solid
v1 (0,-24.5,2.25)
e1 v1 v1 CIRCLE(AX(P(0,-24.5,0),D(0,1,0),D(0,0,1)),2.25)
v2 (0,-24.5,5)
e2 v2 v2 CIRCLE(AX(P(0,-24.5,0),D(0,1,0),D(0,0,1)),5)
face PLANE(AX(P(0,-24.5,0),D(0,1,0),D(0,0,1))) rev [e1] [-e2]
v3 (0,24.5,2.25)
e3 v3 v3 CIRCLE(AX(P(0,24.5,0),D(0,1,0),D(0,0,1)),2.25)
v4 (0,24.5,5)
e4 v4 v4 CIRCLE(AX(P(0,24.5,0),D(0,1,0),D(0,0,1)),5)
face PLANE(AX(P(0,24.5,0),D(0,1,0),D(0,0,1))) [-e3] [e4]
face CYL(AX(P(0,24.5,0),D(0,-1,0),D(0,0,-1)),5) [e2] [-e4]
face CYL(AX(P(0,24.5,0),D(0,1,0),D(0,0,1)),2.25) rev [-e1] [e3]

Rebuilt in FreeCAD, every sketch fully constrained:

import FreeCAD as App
import Part
import Sketcher
from FreeCAD import Vector
Q = App.Units.Quantity

doc = App.newDocument("Part")
body = doc.addObject("PartDesign::Body", "Body")

sketch1 = body.newObject("Sketcher::SketchObject", "Sketch")
sketch1.AttachmentSupport = (doc.getObject("XZ_Plane"), [""])
sketch1.MapMode = "FlatFace"
sketch1.addGeometry(Part.Circle(Vector(0, 0, 0), Vector(0, 0, 1), 5), False)
sketch1.addConstraint([
    Sketcher.Constraint("Coincident", 0, 3, -1, 1),
    Sketcher.Constraint("Diameter", 0, Q("10 mm")),
])
pad1 = body.newObject("PartDesign::Pad", "Pad")
pad1.Profile = sketch1
pad1.Length = 49
pad1.Midplane = True

sketch2 = body.newObject("Sketcher::SketchObject", "Sketch001")
sketch2.AttachmentSupport = (doc.getObject("XZ_Plane"), [""])
sketch2.MapMode = "FlatFace"
sketch2.AttachmentOffset = App.Placement(Vector(0, 0, -24.5), App.Rotation())
sketch2.addGeometry(Part.Circle(Vector(0, 0, 0), Vector(0, 0, 1), 2.25), False)
sketch2.addConstraint([
    Sketcher.Constraint("Coincident", 0, 3, -1, 1),
    Sketcher.Constraint("Diameter", 0, Q("4.5 mm")),
])
doc.recompute()
hole = body.newObject("PartDesign::Hole", "Hole")
hole.Profile = sketch2
hole.ThreadType = "None"
hole.Diameter = 4.5
hole.DepthType = "ThroughAll"
hole.Reversed = True

doc.recompute()
